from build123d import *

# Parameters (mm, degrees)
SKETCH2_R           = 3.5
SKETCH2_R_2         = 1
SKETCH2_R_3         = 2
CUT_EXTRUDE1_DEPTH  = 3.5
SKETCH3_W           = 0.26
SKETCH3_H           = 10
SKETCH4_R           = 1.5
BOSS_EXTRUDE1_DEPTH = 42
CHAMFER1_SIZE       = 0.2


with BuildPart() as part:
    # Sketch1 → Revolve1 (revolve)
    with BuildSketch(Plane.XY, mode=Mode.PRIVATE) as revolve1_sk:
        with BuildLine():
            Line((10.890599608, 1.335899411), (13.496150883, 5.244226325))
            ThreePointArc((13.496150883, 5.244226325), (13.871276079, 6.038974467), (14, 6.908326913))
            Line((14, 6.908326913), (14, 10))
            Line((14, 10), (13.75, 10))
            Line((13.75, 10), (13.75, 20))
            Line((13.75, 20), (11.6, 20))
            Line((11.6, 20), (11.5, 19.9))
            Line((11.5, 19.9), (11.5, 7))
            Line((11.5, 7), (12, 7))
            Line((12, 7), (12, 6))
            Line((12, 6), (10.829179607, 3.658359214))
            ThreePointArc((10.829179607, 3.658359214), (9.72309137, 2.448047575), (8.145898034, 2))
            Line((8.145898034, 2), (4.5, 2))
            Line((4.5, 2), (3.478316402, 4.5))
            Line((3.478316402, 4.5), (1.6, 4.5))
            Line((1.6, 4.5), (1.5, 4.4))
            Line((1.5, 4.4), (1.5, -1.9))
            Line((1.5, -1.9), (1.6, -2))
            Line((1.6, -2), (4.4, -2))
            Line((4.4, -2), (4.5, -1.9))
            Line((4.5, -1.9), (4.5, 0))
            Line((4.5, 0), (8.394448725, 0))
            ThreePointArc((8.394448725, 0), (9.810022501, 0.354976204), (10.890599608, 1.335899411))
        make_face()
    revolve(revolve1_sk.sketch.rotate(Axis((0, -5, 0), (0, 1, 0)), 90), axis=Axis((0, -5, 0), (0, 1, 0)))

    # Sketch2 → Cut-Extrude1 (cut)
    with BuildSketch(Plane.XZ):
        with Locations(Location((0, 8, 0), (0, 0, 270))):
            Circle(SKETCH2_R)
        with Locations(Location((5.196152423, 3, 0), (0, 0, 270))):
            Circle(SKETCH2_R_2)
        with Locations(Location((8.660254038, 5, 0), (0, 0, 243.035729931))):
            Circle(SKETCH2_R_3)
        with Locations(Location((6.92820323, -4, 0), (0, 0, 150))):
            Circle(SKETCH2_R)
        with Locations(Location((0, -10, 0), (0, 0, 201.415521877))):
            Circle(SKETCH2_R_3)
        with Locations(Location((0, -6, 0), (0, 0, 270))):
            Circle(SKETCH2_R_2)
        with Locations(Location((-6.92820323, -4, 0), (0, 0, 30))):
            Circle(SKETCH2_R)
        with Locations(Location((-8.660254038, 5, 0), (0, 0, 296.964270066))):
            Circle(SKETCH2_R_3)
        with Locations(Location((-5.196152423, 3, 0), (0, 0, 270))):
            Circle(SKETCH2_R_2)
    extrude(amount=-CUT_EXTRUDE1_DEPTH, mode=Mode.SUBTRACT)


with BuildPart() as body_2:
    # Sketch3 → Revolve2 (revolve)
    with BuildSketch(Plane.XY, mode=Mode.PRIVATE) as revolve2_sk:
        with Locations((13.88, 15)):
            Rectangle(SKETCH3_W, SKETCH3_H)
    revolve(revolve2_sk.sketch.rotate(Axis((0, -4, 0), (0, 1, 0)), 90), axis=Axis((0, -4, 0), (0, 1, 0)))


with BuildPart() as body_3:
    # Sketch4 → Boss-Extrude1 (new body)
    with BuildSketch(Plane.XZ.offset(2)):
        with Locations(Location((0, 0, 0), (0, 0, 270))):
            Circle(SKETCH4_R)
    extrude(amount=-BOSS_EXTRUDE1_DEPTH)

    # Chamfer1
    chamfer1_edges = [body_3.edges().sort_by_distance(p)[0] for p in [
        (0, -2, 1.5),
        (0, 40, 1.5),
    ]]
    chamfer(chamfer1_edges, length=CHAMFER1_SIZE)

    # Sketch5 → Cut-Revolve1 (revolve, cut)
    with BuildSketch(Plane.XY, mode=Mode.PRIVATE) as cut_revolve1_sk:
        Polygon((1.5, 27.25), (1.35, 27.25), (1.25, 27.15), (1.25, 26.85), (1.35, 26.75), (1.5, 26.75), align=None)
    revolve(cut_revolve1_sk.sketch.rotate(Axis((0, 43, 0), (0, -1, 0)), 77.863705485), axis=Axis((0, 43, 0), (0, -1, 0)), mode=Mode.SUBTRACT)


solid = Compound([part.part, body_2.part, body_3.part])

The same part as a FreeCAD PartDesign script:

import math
import FreeCAD as App
import Part
import Sketcher
Q = App.Units.Quantity


def edges_at(feature, points):
    """Names of the edges that pass closest to the given points."""
    edges = feature.Shape.Edges
    near = lambda p: min(range(len(edges)), key=lambda i: edges[i].distToShape(Part.Vertex(*p))[0])
    return sorted({f"Edge{near(p) + 1}" for p in points})

doc = App.newDocument("Part")
body = doc.addObject("PartDesign::Body", "Body")

# Sketch on XY plane
sketch1 = body.newObject("Sketcher::SketchObject", "Sketch")
sketch1.AttachmentSupport = (doc.getObject("XY_Plane"), [""])
sketch1.MapMode = "FlatFace"
sketch1.addGeometry([
    Part.LineSegment(App.Vector(10.89, 1.34, 0), App.Vector(13.5, 5.24, 0)),  # 0
    Part.ArcOfCircle(Part.Circle(App.Vector(11, 6.91, 0), App.Vector(0, 0, 1), 3), math.radians(-34), math.radians(0)),  # 1
    Part.LineSegment(App.Vector(14, 6.91, 0), App.Vector(14, 10, 0)),  # 2
    Part.LineSegment(App.Vector(14, 10, 0), App.Vector(13.75, 10, 0)),  # 3
    Part.LineSegment(App.Vector(13.75, 10, 0), App.Vector(13.75, 20, 0)),  # 4
    Part.LineSegment(App.Vector(13.75, 20, 0), App.Vector(11.6, 20, 0)),  # 5
    Part.LineSegment(App.Vector(11.6, 20, 0), App.Vector(11.5, 19.9, 0)),  # 6
    Part.LineSegment(App.Vector(11.5, 19.9, 0), App.Vector(11.5, 7, 0)),  # 7
    Part.LineSegment(App.Vector(11.5, 7, 0), App.Vector(12, 7, 0)),  # 8
    Part.LineSegment(App.Vector(12, 7, 0), App.Vector(12, 6, 0)),  # 9
    Part.LineSegment(App.Vector(12, 6, 0), App.Vector(10.83, 3.66, 0)),  # 10
    Part.ArcOfCircle(Part.Circle(App.Vector(8.15, 5, 0), App.Vector(0, 0, 1), 3), math.radians(-90), math.radians(-27)),  # 11
    Part.LineSegment(App.Vector(8.15, 2, 0), App.Vector(4.5, 2, 0)),  # 12
    Part.LineSegment(App.Vector(4.5, 2, 0), App.Vector(3.48, 4.5, 0)),  # 13
    Part.LineSegment(App.Vector(3.48, 4.5, 0), App.Vector(1.6, 4.5, 0)),  # 14
    Part.LineSegment(App.Vector(1.6, 4.5, 0), App.Vector(1.5, 4.4, 0)),  # 15
    Part.LineSegment(App.Vector(1.5, 4.4, 0), App.Vector(1.5, -1.9, 0)),  # 16
    Part.LineSegment(App.Vector(1.5, -1.9, 0), App.Vector(1.6, -2, 0)),  # 17
    Part.LineSegment(App.Vector(1.6, -2, 0), App.Vector(4.4, -2, 0)),  # 18
    Part.LineSegment(App.Vector(4.4, -2, 0), App.Vector(4.5, -1.9, 0)),  # 19
    Part.LineSegment(App.Vector(4.5, -1.9, 0), App.Vector(4.5, 0, 0)),  # 20
    Part.LineSegment(App.Vector(4.5, 0, 0), App.Vector(8.39, 0, 0)),  # 21
    Part.ArcOfCircle(Part.Circle(App.Vector(8.39, 3, 0), App.Vector(0, 0, 1), 3), math.radians(-90), math.radians(-34)),  # 22
], False)
sketch1.addConstraint([
    Sketcher.Constraint("Tangent", 0, 2, 1, 1),
    Sketcher.Constraint("Tangent", 1, 2, 2, 1),
    Sketcher.Constraint("Coincident", 2, 2, 3, 1),
    Sketcher.Constraint("Coincident", 3, 2, 4, 1),
    Sketcher.Constraint("Coincident", 4, 2, 5, 1),
    Sketcher.Constraint("Coincident", 5, 2, 6, 1),
    Sketcher.Constraint("Coincident", 6, 2, 7, 1),
    Sketcher.Constraint("Coincident", 7, 2, 8, 1),
    Sketcher.Constraint("Coincident", 8, 2, 9, 1),
    Sketcher.Constraint("Coincident", 9, 2, 10, 1),
    Sketcher.Constraint("Tangent", 10, 2, 11, 2),
    Sketcher.Constraint("Tangent", 11, 1, 12, 1),
    Sketcher.Constraint("Coincident", 12, 2, 13, 1),
    Sketcher.Constraint("Coincident", 13, 2, 14, 1),
    Sketcher.Constraint("Coincident", 14, 2, 15, 1),
    Sketcher.Constraint("Coincident", 15, 2, 16, 1),
    Sketcher.Constraint("Coincident", 16, 2, 17, 1),
    Sketcher.Constraint("Coincident", 17, 2, 18, 1),
    Sketcher.Constraint("Coincident", 18, 2, 19, 1),
    Sketcher.Constraint("Coincident", 19, 2, 20, 1),
    Sketcher.Constraint("Coincident", 20, 2, 21, 1),
    Sketcher.Constraint("Tangent", 21, 2, 22, 1),
    Sketcher.Constraint("Tangent", 22, 2, 0, 1),
    Sketcher.Constraint("Vertical", 2),
    Sketcher.Constraint("Horizontal", 3),
    Sketcher.Constraint("Vertical", 4),
    Sketcher.Constraint("Horizontal", 5),
    Sketcher.Constraint("Vertical", 7),
    Sketcher.Constraint("Horizontal", 8),
    Sketcher.Constraint("Vertical", 9),
    Sketcher.Constraint("Horizontal", 12),
    Sketcher.Constraint("Horizontal", 14),
    Sketcher.Constraint("Vertical", 16),
    Sketcher.Constraint("Horizontal", 18),
    Sketcher.Constraint("Vertical", 20),
    Sketcher.Constraint("Horizontal", 21),
    Sketcher.Constraint("Equal", 1, 11),
    Sketcher.Constraint("Equal", 11, 22),
    Sketcher.Constraint("PointOnObject", 20, 2, -1),
    Sketcher.Constraint("Parallel", 6, 15),
    Sketcher.Constraint("Perpendicular", 15, 17),
    Sketcher.Constraint("Perpendicular", 17, 19),
    Sketcher.Constraint("Horizontal", 16, 2, 19, 2),
    Sketcher.Constraint("Vertical", 14, 2, 17, 2),
    Sketcher.Constraint("Vertical", 12, 2, 19, 2),
    Sketcher.Constraint("Equal", 6, 15),
    Sketcher.Constraint("Equal", 15, 17),
    Sketcher.Constraint("Radius", 1, Q("3 mm")),
    Sketcher.Constraint("DistanceY", 4, 1, 4, 2, Q("10 mm")),
    Sketcher.Constraint("DistanceY", 9, 2, 9, 1, Q("1 mm")),
    Sketcher.Constraint("DistanceX", 8, 1, 8, 2, Q("0.5 mm")),
    Sketcher.Constraint("DistanceX", 18, 1, 18, 2, Q("2.8 mm")),
    Sketcher.Constraint("DistanceY", 7, 2, 7, 1, Q("12.9 mm")),
    Sketcher.Constraint("DistanceY", 16, 2, 16, 1, Q("6.3 mm")),
    Sketcher.Constraint("DistanceY", 20, 1, 20, 2, Q("1.9 mm")),
    Sketcher.Constraint("DistanceX", -1, 1, 1, 3, Q("11 mm")),
    Sketcher.Constraint("DistanceY", -1, 1, 11, 3, Q("5 mm")),
    Sketcher.Constraint("DistanceY", -1, 1, 2, 2, Q("10 mm")),
    Sketcher.Constraint("DistanceY", -1, 1, 7, 2, Q("7 mm")),
    Sketcher.Constraint("DistanceX", -1, 1, 8, 2, Q("12 mm")),
    Sketcher.Constraint("DistanceX", 3, 2, 3, 1, Q("0.25 mm")),
    Sketcher.Constraint("DistanceX", -1, 1, 12, 2, Q("4.5 mm")),
    Sketcher.Constraint("DistanceX", 12, 2, 12, 1, Q("3.645898 mm")),
    Sketcher.Constraint("DistanceX", 21, 1, 21, 2, Q("3.894449 mm")),
    Sketcher.Constraint("DistanceX", -1, 1, 22, 2, Q("10.8906 mm")),
    Sketcher.Constraint("Distance", 13, Q("2.700711 mm")),
])
revolution = body.newObject("PartDesign::Revolution", "Revolution")
revolution.Profile = sketch1
revolution.ReferenceAxis = (sketch1, ["V_Axis"])
revolution.Angle = 360

# Sketch on XZ plane
sketch2 = body.newObject("Sketcher::SketchObject", "Sketch001")
sketch2.AttachmentSupport = (doc.getObject("XZ_Plane"), [""])
sketch2.MapMode = "FlatFace"
sketch2.addGeometry([
    Part.Circle(App.Vector(0, 8, 0), App.Vector(0, 0, 1), 3.5),  # 0
    Part.Circle(App.Vector(5.2, 3, 0), App.Vector(0, 0, 1), 1),  # 1
    Part.Circle(App.Vector(8.7, 5, 0), App.Vector(0, 0, 1), 2),  # 2
    Part.Circle(App.Vector(6.9, -4, 0), App.Vector(0, 0, 1), 3.5),  # 3
    Part.Circle(App.Vector(0, -10, 0), App.Vector(0, 0, 1), 2),  # 4
    Part.Circle(App.Vector(0, -6, 0), App.Vector(0, 0, 1), 1),  # 5
    Part.Circle(App.Vector(-6.9, -4, 0), App.Vector(0, 0, 1), 3.5),  # 6
    Part.Circle(App.Vector(-8.7, 5, 0), App.Vector(0, 0, 1), 2),  # 7
    Part.Circle(App.Vector(-5.2, 3, 0), App.Vector(0, 0, 1), 1),  # 8
], False)
sketch2.addConstraint([
    Sketcher.Constraint("Equal", 0, 3),
    Sketcher.Constraint("Equal", 2, 4),
    Sketcher.Constraint("Equal", 1, 5),
    Sketcher.Constraint("Equal", 3, 6),
    Sketcher.Constraint("Equal", 4, 7),
    Sketcher.Constraint("Equal", 5, 8),
    Sketcher.Constraint("Symmetric", 3, 3, 6, 3, -2),
    Sketcher.Constraint("Symmetric", 2, 3, 7, 3, -2),
    Sketcher.Constraint("Symmetric", 1, 3, 8, 3, -2),
    Sketcher.Constraint("PointOnObject", 0, 3, -2),
    Sketcher.Constraint("PointOnObject", 4, 3, -2),
    Sketcher.Constraint("PointOnObject", 5, 3, -2),
    Sketcher.Constraint("Diameter", 0, Q("7 mm")),
    Sketcher.Constraint("Diameter", 1, Q("2 mm")),
    Sketcher.Constraint("Diameter", 2, Q("4 mm")),
    Sketcher.Constraint("DistanceY", -1, 1, 0, 3, Q("8 mm")),
    Sketcher.Constraint("DistanceY", -1, 1, 1, 3, Q("3 mm")),
    Sketcher.Constraint("DistanceY", -1, 1, 2, 3, Q("5 mm")),
    Sketcher.Constraint("DistanceY", 3, 3, -1, 1, Q("4 mm")),
    Sketcher.Constraint("DistanceY", 4, 3, -1, 1, Q("10 mm")),
    Sketcher.Constraint("DistanceY", 5, 3, -1, 1, Q("6 mm")),
    Sketcher.Constraint("DistanceX", 1, 3, 2, 3, Q("3.464102 mm")),
    Sketcher.Constraint("DistanceX", 1, 3, 3, 3, Q("1.732051 mm")),
    Sketcher.Constraint("DistanceX", -1, 1, 1, 3, Q("5.196152 mm")),
])
pocket1 = body.newObject("PartDesign::Pocket", "Pocket")
pocket1.Profile = sketch2
pocket1.Length = 3.5
body2 = doc.addObject("PartDesign::Body", "Body001")

# Sketch on XY plane
sketch3 = body2.newObject("Sketcher::SketchObject", "Sketch002")
sketch3.AttachmentSupport = (doc.getObject("XY_Plane001"), [""])
sketch3.MapMode = "FlatFace"
sketch3.addGeometry([
    Part.LineSegment(App.Vector(13.75, 20, 0), App.Vector(13.75, 10, 0)),
    Part.LineSegment(App.Vector(13.75, 10, 0), App.Vector(14.01, 10, 0)),
    Part.LineSegment(App.Vector(14.01, 10, 0), App.Vector(14.01, 20, 0)),
    Part.LineSegment(App.Vector(14.01, 20, 0), App.Vector(13.75, 20, 0)),
], False)
sketch3.addConstraint([
    Sketcher.Constraint("Coincident", 0, 2, 1, 1),
    Sketcher.Constraint("Coincident", 1, 2, 2, 1),
    Sketcher.Constraint("Coincident", 2, 2, 3, 1),
    Sketcher.Constraint("Coincident", 3, 2, 0, 1),
    Sketcher.Constraint("Vertical", 0),
    Sketcher.Constraint("Horizontal", 1),
    Sketcher.Constraint("Vertical", 2),
    Sketcher.Constraint("Horizontal", 3),
    Sketcher.Constraint("DistanceY", 0, 2, 0, 1, Q("10 mm")),
    Sketcher.Constraint("DistanceY", -1, 1, 0, 2, Q("10 mm")),
    Sketcher.Constraint("DistanceX", 1, 1, 1, 2, Q("0.26 mm")),
    Sketcher.Constraint("DistanceX", -1, 1, 0, 2, Q("13.75 mm")),
])
revolution2 = body2.newObject("PartDesign::Revolution", "Revolution001")
revolution2.Profile = sketch3
revolution2.ReferenceAxis = (sketch3, ["V_Axis"])
revolution2.Angle = 360
body3 = doc.addObject("PartDesign::Body", "Body002")

# Sketch on XZ plane
sketch4 = body3.newObject("Sketcher::SketchObject", "Sketch003")
sketch4.AttachmentSupport = (doc.getObject("XZ_Plane002"), [""])
sketch4.MapMode = "FlatFace"
sketch4.AttachmentOffset = App.Placement(App.Vector(0, 0, 2), App.Rotation())
sketch4.addGeometry(Part.Circle(App.Vector(0, 0, 0), App.Vector(0, 0, 1), 1.5), False)
sketch4.addConstraint([
    Sketcher.Constraint("Coincident", 0, 3, -1, 1),
    Sketcher.Constraint("Diameter", 0, Q("3 mm")),
])
pad1 = body3.newObject("PartDesign::Pad", "Pad")
pad1.Profile = sketch4
pad1.Length = 42
pad1.Reversed = True
doc.recompute()

chamfer = body3.newObject("PartDesign::Chamfer", "Chamfer")
chamfer.Base = (pad1, edges_at(pad1, [(0, -2, 1.5), (0, 40, 1.5)]))
chamfer.Size = 0.2

# Sketch on XY plane
sketch5 = body3.newObject("Sketcher::SketchObject", "Sketch004")
sketch5.AttachmentSupport = (doc.getObject("XY_Plane002"), [""])
sketch5.MapMode = "FlatFace"
sketch5.addGeometry([
    Part.LineSegment(App.Vector(1.5, 27.25, 0), App.Vector(1.35, 27.25, 0)),  # 0
    Part.LineSegment(App.Vector(1.35, 27.25, 0), App.Vector(1.25, 27.15, 0)),  # 1
    Part.LineSegment(App.Vector(1.25, 27.15, 0), App.Vector(1.25, 26.85, 0)),  # 2
    Part.LineSegment(App.Vector(1.25, 26.85, 0), App.Vector(1.35, 26.75, 0)),  # 3
    Part.LineSegment(App.Vector(1.35, 26.75, 0), App.Vector(1.5, 26.75, 0)),  # 4
    Part.LineSegment(App.Vector(1.5, 26.75, 0), App.Vector(1.5, 27.25, 0)),  # 5
], False)
sketch5.addConstraint([
    Sketcher.Constraint("Coincident", 0, 2, 1, 1),
    Sketcher.Constraint("Coincident", 1, 2, 2, 1),
    Sketcher.Constraint("Coincident", 2, 2, 3, 1),
    Sketcher.Constraint("Coincident", 3, 2, 4, 1),
    Sketcher.Constraint("Coincident", 4, 2, 5, 1),
    Sketcher.Constraint("Coincident", 5, 2, 0, 1),
    Sketcher.Constraint("Horizontal", 0),
    Sketcher.Constraint("Vertical", 2),
    Sketcher.Constraint("Horizontal", 4),
    Sketcher.Constraint("Vertical", 5),
    Sketcher.Constraint("Perpendicular", 1, 3),
    Sketcher.Constraint("Vertical", 0, 2, 3, 2),
    Sketcher.Constraint("Equal", 1, 3),
    Sketcher.Constraint("DistanceY", 2, 2, 2, 1, Q("0.3 mm")),
    Sketcher.Constraint("DistanceY", 5, 1, 5, 2, Q("0.5 mm")),
    Sketcher.Constraint("DistanceX", 0, 2, 0, 1, Q("0.15 mm")),
    Sketcher.Constraint("DistanceX", -1, 1, 4, 2, Q("1.5 mm")),
    Sketcher.Constraint("DistanceY", -1, 1, 0, 2, Q("27.25 mm")),
])
groove = body3.newObject("PartDesign::Groove", "Groove")
groove.Profile = sketch5
groove.ReferenceAxis = (sketch5, ["V_Axis"])
groove.Angle = 360

doc.recompute()
